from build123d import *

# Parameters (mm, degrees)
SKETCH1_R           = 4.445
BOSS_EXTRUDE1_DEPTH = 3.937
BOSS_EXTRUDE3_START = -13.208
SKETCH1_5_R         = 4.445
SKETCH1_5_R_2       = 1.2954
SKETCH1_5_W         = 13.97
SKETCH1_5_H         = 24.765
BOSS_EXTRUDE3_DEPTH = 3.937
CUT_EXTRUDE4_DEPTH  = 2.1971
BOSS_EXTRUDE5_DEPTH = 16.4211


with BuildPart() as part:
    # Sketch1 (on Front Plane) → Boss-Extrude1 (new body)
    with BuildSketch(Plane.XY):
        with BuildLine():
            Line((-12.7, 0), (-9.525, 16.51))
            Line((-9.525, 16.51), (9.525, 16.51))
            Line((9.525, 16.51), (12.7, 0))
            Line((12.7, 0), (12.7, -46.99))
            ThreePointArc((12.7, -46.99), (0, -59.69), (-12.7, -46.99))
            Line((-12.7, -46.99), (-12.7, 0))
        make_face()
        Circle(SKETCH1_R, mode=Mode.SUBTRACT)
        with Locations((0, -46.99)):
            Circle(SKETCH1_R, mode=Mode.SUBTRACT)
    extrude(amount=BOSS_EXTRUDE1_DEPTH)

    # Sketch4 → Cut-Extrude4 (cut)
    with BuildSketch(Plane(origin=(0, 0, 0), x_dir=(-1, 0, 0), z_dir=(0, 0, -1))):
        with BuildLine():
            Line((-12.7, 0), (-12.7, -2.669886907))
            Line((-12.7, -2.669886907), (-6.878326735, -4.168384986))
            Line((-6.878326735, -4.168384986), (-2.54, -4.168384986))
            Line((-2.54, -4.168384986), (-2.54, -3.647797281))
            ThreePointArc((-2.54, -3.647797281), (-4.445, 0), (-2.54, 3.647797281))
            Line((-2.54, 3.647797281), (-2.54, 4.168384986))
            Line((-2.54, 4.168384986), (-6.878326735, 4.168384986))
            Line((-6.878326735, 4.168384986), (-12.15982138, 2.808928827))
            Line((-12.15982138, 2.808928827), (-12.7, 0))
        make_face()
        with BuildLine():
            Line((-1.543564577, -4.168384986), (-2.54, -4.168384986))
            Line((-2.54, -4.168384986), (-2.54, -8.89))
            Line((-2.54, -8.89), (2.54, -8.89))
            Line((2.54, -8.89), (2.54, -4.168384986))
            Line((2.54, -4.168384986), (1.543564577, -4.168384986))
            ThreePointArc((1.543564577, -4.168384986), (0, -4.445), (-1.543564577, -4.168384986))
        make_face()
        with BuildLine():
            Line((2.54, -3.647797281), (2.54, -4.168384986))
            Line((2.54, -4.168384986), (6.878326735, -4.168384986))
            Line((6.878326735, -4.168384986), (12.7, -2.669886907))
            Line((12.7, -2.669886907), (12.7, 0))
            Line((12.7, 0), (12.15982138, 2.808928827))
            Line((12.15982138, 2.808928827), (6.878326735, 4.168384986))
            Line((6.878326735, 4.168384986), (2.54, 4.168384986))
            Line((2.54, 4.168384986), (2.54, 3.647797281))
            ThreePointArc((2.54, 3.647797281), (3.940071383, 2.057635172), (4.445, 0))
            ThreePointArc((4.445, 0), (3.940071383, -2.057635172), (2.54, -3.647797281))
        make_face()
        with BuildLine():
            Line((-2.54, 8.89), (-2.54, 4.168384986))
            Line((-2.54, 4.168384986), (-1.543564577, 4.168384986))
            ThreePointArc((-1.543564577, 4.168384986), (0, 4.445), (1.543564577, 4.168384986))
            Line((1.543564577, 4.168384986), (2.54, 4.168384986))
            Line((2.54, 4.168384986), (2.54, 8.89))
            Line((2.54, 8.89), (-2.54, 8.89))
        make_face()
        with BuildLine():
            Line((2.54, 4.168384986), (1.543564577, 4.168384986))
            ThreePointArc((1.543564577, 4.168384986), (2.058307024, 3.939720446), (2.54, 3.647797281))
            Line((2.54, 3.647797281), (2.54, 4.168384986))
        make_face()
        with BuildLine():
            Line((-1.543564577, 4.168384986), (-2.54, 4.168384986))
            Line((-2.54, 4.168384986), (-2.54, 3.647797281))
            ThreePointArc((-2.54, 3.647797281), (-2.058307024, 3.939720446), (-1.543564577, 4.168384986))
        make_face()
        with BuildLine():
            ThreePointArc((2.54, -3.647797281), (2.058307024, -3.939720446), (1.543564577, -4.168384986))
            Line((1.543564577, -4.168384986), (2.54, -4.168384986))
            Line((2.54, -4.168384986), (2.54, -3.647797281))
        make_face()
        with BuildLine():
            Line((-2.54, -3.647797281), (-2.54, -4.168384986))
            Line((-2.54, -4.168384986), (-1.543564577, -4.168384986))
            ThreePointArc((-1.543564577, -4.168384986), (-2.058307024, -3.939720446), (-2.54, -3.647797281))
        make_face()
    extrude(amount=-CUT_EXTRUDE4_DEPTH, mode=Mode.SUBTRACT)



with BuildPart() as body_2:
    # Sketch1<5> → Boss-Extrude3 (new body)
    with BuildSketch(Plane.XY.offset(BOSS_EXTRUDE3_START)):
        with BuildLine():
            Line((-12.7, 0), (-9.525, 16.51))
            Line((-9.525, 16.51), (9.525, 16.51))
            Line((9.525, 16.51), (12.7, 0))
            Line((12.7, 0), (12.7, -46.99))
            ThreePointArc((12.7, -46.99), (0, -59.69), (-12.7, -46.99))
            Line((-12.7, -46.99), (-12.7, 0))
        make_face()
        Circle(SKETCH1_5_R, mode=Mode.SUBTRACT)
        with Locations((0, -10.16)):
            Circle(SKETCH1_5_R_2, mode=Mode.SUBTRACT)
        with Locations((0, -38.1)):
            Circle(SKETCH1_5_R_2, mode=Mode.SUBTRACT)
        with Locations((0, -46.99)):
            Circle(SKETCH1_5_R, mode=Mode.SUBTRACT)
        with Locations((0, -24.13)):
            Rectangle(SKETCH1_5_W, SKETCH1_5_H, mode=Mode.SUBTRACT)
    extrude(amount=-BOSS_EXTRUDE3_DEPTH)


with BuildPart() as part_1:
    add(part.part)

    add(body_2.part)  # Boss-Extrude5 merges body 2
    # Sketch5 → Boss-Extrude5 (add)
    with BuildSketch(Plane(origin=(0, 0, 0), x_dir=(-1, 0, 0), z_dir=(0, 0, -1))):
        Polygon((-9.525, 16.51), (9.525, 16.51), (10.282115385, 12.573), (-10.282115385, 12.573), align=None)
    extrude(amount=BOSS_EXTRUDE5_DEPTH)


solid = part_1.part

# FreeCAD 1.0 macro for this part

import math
import FreeCAD as App
import Part
import Sketcher
Q = App.Units.Quantity

doc = App.newDocument("Part")
params = doc.addObject("Spreadsheet::Sheet", "Params")
for row, (alias, value) in enumerate([
    ("sketch1_radius", "0.5 in"),
    ("sketch1_diameter", "0.35 in"),
    ("sketch1_width", "0.75 in"),
    ("sketch1_height", "1.85 in"),
    ("pad1_length", "0.155 in"),
    ("sketch2_width", "0.2 in"),
    ("sketch2_radius", "0.175 in"),
    ("pocket1_length", "0.0865 in"),
    ("sketch3_radius", "0.5 in"),
    ("sketch3_diameter", "0.35 in"),
    ("sketch3_diameter2", "0.102 in"),
    ("sketch3_width", "0.75 in"),
    ("sketch3_width2", "0.55 in"),
    ("pad2_length", "0.155 in"),
    ("sketch4_width", "0.75 in"),
    ("pad3_length", "0.6465 in"),
], start=1):
    params.set(f"A{row}", alias)
    params.set(f"B{row}", "=" + value)
    params.setAlias(f"B{row}", alias)

body = doc.addObject("PartDesign::Body", "Body")

sketch1 = body.newObject("Sketcher::SketchObject", "Sketch")
sketch1.AttachmentSupport = (doc.getObject("XY_Plane"), [""])
sketch1.MapMode = "FlatFace"
sketch1.addGeometry(Part.LineSegment(App.Vector(-9.5, 16.5, 0), App.Vector(-12.7, 0, 0)), False)
sketch1.addGeometry(Part.LineSegment(App.Vector(-12.7, 0, 0), App.Vector(-12.7, -47, 0)), False)
sketch1.addGeometry(Part.ArcOfCircle(Part.Circle(App.Vector(0, -47, 0), App.Vector(0, 0, 1), 12.7), math.radians(180), math.radians(360)), False)
sketch1.addGeometry(Part.LineSegment(App.Vector(12.7, -47, 0), App.Vector(12.7, 0, 0)), False)
sketch1.addGeometry(Part.LineSegment(App.Vector(12.7, 0, 0), App.Vector(9.5, 16.5, 0)), False)
sketch1.addGeometry(Part.LineSegment(App.Vector(9.5, 16.5, 0), App.Vector(-9.5, 16.5, 0)), False)
sketch1.addGeometry(Part.Circle(App.Vector(0, -47, 0), App.Vector(0, 0, 1), 4.4), False)
sketch1.addGeometry(Part.Circle(App.Vector(0, 0, 0), App.Vector(0, 0, 1), 4.4), False)
sketch1.addConstraint(Sketcher.Constraint("Coincident", 0, 2, 1, 1))
sketch1.addConstraint(Sketcher.Constraint("Tangent", 1, 2, 2, 1))
sketch1.addConstraint(Sketcher.Constraint("Tangent", 2, 2, 3, 1))
sketch1.addConstraint(Sketcher.Constraint("Coincident", 3, 2, 4, 1))
sketch1.addConstraint(Sketcher.Constraint("Coincident", 4, 2, 5, 1))
sketch1.addConstraint(Sketcher.Constraint("Coincident", 5, 2, 0, 1))
sketch1.addConstraint(Sketcher.Constraint("Vertical", 1))
sketch1.addConstraint(Sketcher.Constraint("Vertical", 3))
sketch1.addConstraint(Sketcher.Constraint("Horizontal", 5))
sketch1.addConstraint(Sketcher.Constraint("Coincident", 7, 3, -1, 1))
sketch1.addConstraint(Sketcher.Constraint("Coincident", 6, 3, 2, 3))
sketch1.addConstraint(Sketcher.Constraint("Equal", 6, 7))
sketch1.addConstraint(Sketcher.Constraint("Symmetric", 0, 2, 3, 2, -1, 1))
sketch1.addConstraint(Sketcher.Constraint("PointOnObject", 0, 2, -1))
sketch1.addConstraint(Sketcher.Constraint("Equal", 0, 4))
sketch1.addConstraint(Sketcher.Constraint("Radius", 2, Q("0.5 in")))
sketch1.addConstraint(Sketcher.Constraint("Diameter", 6, Q("0.35 in")))
sketch1.addConstraint(Sketcher.Constraint("DistanceX", 5, 2, 5, 1, Q("0.75 in")))
sketch1.addConstraint(Sketcher.Constraint("DistanceY", 1, 2, 1, 1, Q("1.85 in")))
sketch1.addConstraint(Sketcher.Constraint("DistanceY", 2, 2, 4, 2, Q("2.5 in")))
sketch1.setExpression("Constraints[15]", "Params.sketch1_radius")
sketch1.setExpression("Constraints[16]", "Params.sketch1_diameter")
sketch1.setExpression("Constraints[17]", "Params.sketch1_width")
sketch1.setExpression("Constraints[18]", "Params.sketch1_height")
pad1 = body.newObject("PartDesign::Pad", "Pad")
pad1.Profile = sketch1
pad1.setExpression("Length", "Params.pad1_length")

sketch2 = body.newObject("Sketcher::SketchObject", "Sketch001")
sketch2.AttachmentSupport = (doc.getObject("XY_Plane"), [""])
sketch2.MapMode = "FlatFace"
sketch2.addGeometry(Part.LineSegment(App.Vector(6.9, -4.2, 0), App.Vector(2.5, -4.2, 0)), False)
sketch2.addGeometry(Part.LineSegment(App.Vector(2.5, -4.2, 0), App.Vector(2.5, -8.9, 0)), False)
sketch2.addGeometry(Part.LineSegment(App.Vector(2.5, -8.9, 0), App.Vector(-2.5, -8.9, 0)), False)
sketch2.addGeometry(Part.LineSegment(App.Vector(-2.5, -8.9, 0), App.Vector(-2.5, -4.2, 0)), False)
sketch2.addGeometry(Part.LineSegment(App.Vector(-2.5, -4.2, 0), App.Vector(-6.9, -4.2, 0)), False)
sketch2.addGeometry(Part.LineSegment(App.Vector(-6.9, -4.2, 0), App.Vector(-12.7, -2.7, 0)), False)
sketch2.addGeometry(Part.LineSegment(App.Vector(-12.7, -2.7, 0), App.Vector(-12.7, 0, 0)), False)
sketch2.addGeometry(Part.LineSegment(App.Vector(-12.7, 0, 0), App.Vector(-12.2, 2.8, 0)), False)
sketch2.addGeometry(Part.LineSegment(App.Vector(-12.2, 2.8, 0), App.Vector(-6.9, 4.2, 0)), False)
sketch2.addGeometry(Part.LineSegment(App.Vector(-6.9, 4.2, 0), App.Vector(-2.5, 4.2, 0)), False)
sketch2.addGeometry(Part.LineSegment(App.Vector(-2.5, 4.2, 0), App.Vector(-2.5, 8.9, 0)), False)
sketch2.addGeometry(Part.LineSegment(App.Vector(-2.5, 8.9, 0), App.Vector(2.5, 8.9, 0)), False)
sketch2.addGeometry(Part.LineSegment(App.Vector(2.5, 8.9, 0), App.Vector(2.5, 4.2, 0)), False)
sketch2.addGeometry(Part.LineSegment(App.Vector(2.5, 4.2, 0), App.Vector(6.9, 4.2, 0)), False)
sketch2.addGeometry(Part.LineSegment(App.Vector(6.9, 4.2, 0), App.Vector(12.2, 2.8, 0)), False)
sketch2.addGeometry(Part.LineSegment(App.Vector(12.2, 2.8, 0), App.Vector(12.7, 0, 0)), False)
sketch2.addGeometry(Part.LineSegment(App.Vector(12.7, 0, 0), App.Vector(12.7, -2.7, 0)), False)
sketch2.addGeometry(Part.LineSegment(App.Vector(12.7, -2.7, 0), App.Vector(6.9, -4.2, 0)), False)
sketch2.addGeometry(Part.ArcOfCircle(Part.Circle(App.Vector(0, 0, 0), App.Vector(0, 0, 1), 4.4), math.radians(-110), math.radians(-70)), False)
sketch2.addGeometry(Part.ArcOfCircle(Part.Circle(App.Vector(0, 0, 0), App.Vector(0, 0, 1), 4.4), math.radians(-69.68), math.radians(-55.15)), False)
sketch2.addGeometry(Part.ArcOfCircle(Part.Circle(App.Vector(0, 0, 0), App.Vector(0, 0, 1), 4.4), math.radians(-55), math.radians(55)), False)
sketch2.addGeometry(Part.ArcOfCircle(Part.Circle(App.Vector(0, 0, 0), App.Vector(0, 0, 1), 4.4), math.radians(55.15), math.radians(69.68)), False)
sketch2.addGeometry(Part.ArcOfCircle(Part.Circle(App.Vector(0, 0, 0), App.Vector(0, 0, 1), 4.4), math.radians(70), math.radians(110)), False)
sketch2.addGeometry(Part.ArcOfCircle(Part.Circle(App.Vector(0, 0, 0), App.Vector(0, 0, 1), 4.4), math.radians(110.32), math.radians(124.85)), False)
sketch2.addGeometry(Part.ArcOfCircle(Part.Circle(App.Vector(0, 0, 0), App.Vector(0, 0, 1), 4.4), math.radians(125), math.radians(180)), False)
sketch2.addGeometry(Part.ArcOfCircle(Part.Circle(App.Vector(0, 0, 0), App.Vector(0, 0, 1), 4.4), math.radians(180), math.radians(235)), False)
sketch2.addGeometry(Part.ArcOfCircle(Part.Circle(App.Vector(0, 0, 0), App.Vector(0, 0, 1), 4.4), math.radians(-124.85), math.radians(-110.32)), False)
sketch2.addConstraint(Sketcher.Constraint("Coincident", 0, 2, 1, 1))
sketch2.addConstraint(Sketcher.Constraint("Coincident", 1, 2, 2, 1))
sketch2.addConstraint(Sketcher.Constraint("Coincident", 2, 2, 3, 1))
sketch2.addConstraint(Sketcher.Constraint("Coincident", 3, 2, 4, 1))
sketch2.addConstraint(Sketcher.Constraint("Coincident", 4, 2, 5, 1))
sketch2.addConstraint(Sketcher.Constraint("Coincident", 5, 2, 6, 1))
sketch2.addConstraint(Sketcher.Constraint("Coincident", 6, 2, 7, 1))
sketch2.addConstraint(Sketcher.Constraint("Coincident", 7, 2, 8, 1))
sketch2.addConstraint(Sketcher.Constraint("Coincident", 8, 2, 9, 1))
sketch2.addConstraint(Sketcher.Constraint("Coincident", 9, 2, 10, 1))
sketch2.addConstraint(Sketcher.Constraint("Coincident", 10, 2, 11, 1))
sketch2.addConstraint(Sketcher.Constraint("Coincident", 11, 2, 12, 1))
sketch2.addConstraint(Sketcher.Constraint("Coincident", 12, 2, 13, 1))
sketch2.addConstraint(Sketcher.Constraint("Coincident", 13, 2, 14, 1))
sketch2.addConstraint(Sketcher.Constraint("Coincident", 14, 2, 15, 1))
sketch2.addConstraint(Sketcher.Constraint("Coincident", 15, 2, 16, 1))
sketch2.addConstraint(Sketcher.Constraint("Coincident", 16, 2, 17, 1))
sketch2.addConstraint(Sketcher.Constraint("Coincident", 17, 2, 0, 1))
sketch2.addConstraint(Sketcher.Constraint("Tangent", 18, 2, 19, 1))
sketch2.addConstraint(Sketcher.Constraint("Tangent", 19, 2, 20, 1))
sketch2.addConstraint(Sketcher.Constraint("Tangent", 20, 2, 21, 1))
sketch2.addConstraint(Sketcher.Constraint("Tangent", 21, 2, 22, 1))
sketch2.addConstraint(Sketcher.Constraint("Tangent", 22, 2, 23, 1))
sketch2.addConstraint(Sketcher.Constraint("Tangent", 23, 2, 24, 1))
sketch2.addConstraint(Sketcher.Constraint("Tangent", 24, 2, 25, 1))
sketch2.addConstraint(Sketcher.Constraint("Tangent", 25, 2, 26, 1))
sketch2.addConstraint(Sketcher.Constraint("Tangent", 26, 2, 18, 1))
sketch2.addConstraint(Sketcher.Constraint("Horizontal", 0))
sketch2.addConstraint(Sketcher.Constraint("Vertical", 1))
sketch2.addConstraint(Sketcher.Constraint("Horizontal", 2))
sketch2.addConstraint(Sketcher.Constraint("Vertical", 3))
sketch2.addConstraint(Sketcher.Constraint("Horizontal", 4))
sketch2.addConstraint(Sketcher.Constraint("Vertical", 6))
sketch2.addConstraint(Sketcher.Constraint("Horizontal", 9))
sketch2.addConstraint(Sketcher.Constraint("Vertical", 10))
sketch2.addConstraint(Sketcher.Constraint("Horizontal", 11))
sketch2.addConstraint(Sketcher.Constraint("Vertical", 12))
sketch2.addConstraint(Sketcher.Constraint("Horizontal", 13))
sketch2.addConstraint(Sketcher.Constraint("Vertical", 16))
sketch2.addConstraint(Sketcher.Constraint("Coincident", 18, 3, -1, 1))
sketch2.addConstraint(Sketcher.Constraint("Coincident", 20, 3, -1, 1))
sketch2.addConstraint(Sketcher.Constraint("Coincident", 22, 3, -1, 1))
sketch2.addConstraint(Sketcher.Constraint("Coincident", 24, 3, -1, 1))
sketch2.addConstraint(Sketcher.Constraint("Symmetric", 0, 2, 9, 2, -1, 1))
sketch2.addConstraint(Sketcher.Constraint("Symmetric", 2, 2, 11, 2, -1, 1))
sketch2.addConstraint(Sketcher.Constraint("Symmetric", 4, 2, 13, 2, -1, 1))
sketch2.addConstraint(Sketcher.Constraint("Symmetric", 6, 2, 15, 2, -1, 1))
sketch2.addConstraint(Sketcher.Constraint("Symmetric", 0, 2, 3, 2, -2))
sketch2.addConstraint(Sketcher.Constraint("Symmetric", 7, 2, 14, 2, -2))
sketch2.addConstraint(Sketcher.Constraint("PointOnObject", 6, 2, -1))
sketch2.addConstraint(Sketcher.Constraint("PointOnObject", 24, 2, -1))
sketch2.addConstraint(Sketcher.Constraint("Parallel", 5, 14))
sketch2.addConstraint(Sketcher.Constraint("Parallel", 8, 17))
sketch2.addConstraint(Sketcher.Constraint("Horizontal", 5, 2, 16, 2))
sketch2.addConstraint(Sketcher.Constraint("Horizontal", 17, 2, 18, 2))
sketch2.addConstraint(Sketcher.Constraint("Horizontal", 13, 2, 21, 2))
sketch2.addConstraint(Sketcher.Constraint("Horizontal", 21, 2, 22, 2))
sketch2.addConstraint(Sketcher.Constraint("Horizontal", 20, 2, 23, 2))
sketch2.addConstraint(Sketcher.Constraint("Horizontal", 19, 2, 25, 2))
sketch2.addConstraint(Sketcher.Constraint("Horizontal", 18, 2, 26, 2))
sketch2.addConstraint(Sketcher.Constraint("Vertical", 4, 2, 8, 2))
sketch2.addConstraint(Sketcher.Constraint("Vertical", 12, 2, 19, 2))
sketch2.addConstraint(Sketcher.Constraint("Vertical", 19, 2, 20, 2))
sketch2.addConstraint(Sketcher.Constraint("DistanceX", 2, 2, 2, 1, Q("0.2 in")))
sketch2.addConstraint(Sketcher.Constraint("Radius", 18, Q("0.175 in")))
sketch2.addConstraint(Sketcher.Constraint("DistanceX", 5, 2, -1, 1, Q("0.5 in")))
sketch2.addConstraint(Sketcher.Constraint("DistanceY", 1, 2, -1, 1, Q("0.35 in")))
sketch2.addConstraint(Sketcher.Constraint("DistanceY", 4, 2, 5, 2, 1.498498))
sketch2.addConstraint(Sketcher.Constraint("Distance", 8, 5.453651))
sketch2.addConstraint(Sketcher.Constraint("DistanceX", 0, 2, 0, 1, 4.338327))
sketch2.addConstraint(Sketcher.Constraint("DistanceY", 1, 2, 1, 1, 4.721615))
sketch2.setExpression("Constraints[63]", "Params.sketch2_width")
sketch2.setExpression("Constraints[64]", "Params.sketch2_radius")
pocket1 = body.newObject("PartDesign::Pocket", "Pocket")
pocket1.Profile = sketch2
pocket1.setExpression("Length", "Params.pocket1_length")
pocket1.Reversed = True
body2 = doc.addObject("PartDesign::Body", "Body001")

sketch3 = body2.newObject("Sketcher::SketchObject", "Sketch002")
sketch3.AttachmentSupport = (doc.getObject("XY_Plane001"), [""])
sketch3.MapMode = "FlatFace"
sketch3.AttachmentOffset = App.Placement(App.Vector(0, 0, -0.52 * 25.4), App.Rotation())
sketch3.addGeometry(Part.LineSegment(App.Vector(-9.5, 16.5, 0), App.Vector(-12.7, 0, 0)), False)
sketch3.addGeometry(Part.LineSegment(App.Vector(-12.7, 0, 0), App.Vector(-12.7, -47, 0)), False)
sketch3.addGeometry(Part.ArcOfCircle(Part.Circle(App.Vector(0, -47, 0), App.Vector(0, 0, 1), 12.7), math.radians(180), math.radians(360)), False)
sketch3.addGeometry(Part.LineSegment(App.Vector(12.7, -47, 0), App.Vector(12.7, 0, 0)), False)
sketch3.addGeometry(Part.LineSegment(App.Vector(12.7, 0, 0), App.Vector(9.5, 16.5, 0)), False)
sketch3.addGeometry(Part.LineSegment(App.Vector(9.5, 16.5, 0), App.Vector(-9.5, 16.5, 0)), False)
sketch3.addGeometry(Part.Circle(App.Vector(0, -47, 0), App.Vector(0, 0, 1), 4.4), False)
sketch3.addGeometry(Part.Circle(App.Vector(0, -38.1, 0), App.Vector(0, 0, 1), 1.3), False)
sketch3.addGeometry(Part.LineSegment(App.Vector(-7, -36.5, 0), App.Vector(-7, -11.7, 0)), False)
sketch3.addGeometry(Part.LineSegment(App.Vector(-7, -11.7, 0), App.Vector(7, -11.7, 0)), False)
sketch3.addGeometry(Part.LineSegment(App.Vector(7, -11.7, 0), App.Vector(7, -36.5, 0)), False)
sketch3.addGeometry(Part.LineSegment(App.Vector(7, -36.5, 0), App.Vector(-7, -36.5, 0)), False)
sketch3.addGeometry(Part.Circle(App.Vector(0, -10.2, 0), App.Vector(0, 0, 1), 1.3), False)
sketch3.addGeometry(Part.Circle(App.Vector(0, 0, 0), App.Vector(0, 0, 1), 4.4), False)
sketch3.addConstraint(Sketcher.Constraint("Coincident", 0, 2, 1, 1))
sketch3.addConstraint(Sketcher.Constraint("Tangent", 1, 2, 2, 1))
sketch3.addConstraint(Sketcher.Constraint("Tangent", 2, 2, 3, 1))
sketch3.addConstraint(Sketcher.Constraint("Coincident", 3, 2, 4, 1))
sketch3.addConstraint(Sketcher.Constraint("Coincident", 4, 2, 5, 1))
sketch3.addConstraint(Sketcher.Constraint("Coincident", 5, 2, 0, 1))
sketch3.addConstraint(Sketcher.Constraint("Coincident", 8, 2, 9, 1))
sketch3.addConstraint(Sketcher.Constraint("Coincident", 9, 2, 10, 1))
sketch3.addConstraint(Sketcher.Constraint("Coincident", 10, 2, 11, 1))
sketch3.addConstraint(Sketcher.Constraint("Coincident", 11, 2, 8, 1))
sketch3.addConstraint(Sketcher.Constraint("Vertical", 1))
sketch3.addConstraint(Sketcher.Constraint("Vertical", 3))
sketch3.addConstraint(Sketcher.Constraint("Horizontal", 5))
sketch3.addConstraint(Sketcher.Constraint("Vertical", 8))
sketch3.addConstraint(Sketcher.Constraint("Horizontal", 9))
sketch3.addConstraint(Sketcher.Constraint("Vertical", 10))
sketch3.addConstraint(Sketcher.Constraint("Horizontal", 11))
sketch3.addConstraint(Sketcher.Constraint("Coincident", 13, 3, -1, 1))
sketch3.addConstraint(Sketcher.Constraint("Coincident", 6, 3, 2, 3))
sketch3.addConstraint(Sketcher.Constraint("Equal", 7, 12))
sketch3.addConstraint(Sketcher.Constraint("Equal", 6, 13))
sketch3.addConstraint(Sketcher.Constraint("Symmetric", 0, 2, 3, 2, -1, 1))
sketch3.addConstraint(Sketcher.Constraint("PointOnObject", 7, 3, -2))
sketch3.addConstraint(Sketcher.Constraint("PointOnObject", 12, 3, -2))
sketch3.addConstraint(Sketcher.Constraint("PointOnObject", 0, 2, -1))
sketch3.addConstraint(Sketcher.Constraint("Equal", 0, 4))
sketch3.addConstraint(Sketcher.Constraint("Radius", 2, Q("0.5 in")))
sketch3.addConstraint(Sketcher.Constraint("Diameter", 6, Q("0.35 in")))
sketch3.addConstraint(Sketcher.Constraint("Diameter", 7, Q("0.102 in")))
sketch3.addConstraint(Sketcher.Constraint("DistanceX", 5, 2, 5, 1, Q("0.75 in")))
sketch3.addConstraint(Sketcher.Constraint("DistanceX", 9, 1, 9, 2, Q("0.55 in")))
sketch3.addConstraint(Sketcher.Constraint("DistanceY", 1, 2, 1, 1, Q("1.85 in")))
sketch3.addConstraint(Sketcher.Constraint("DistanceY", 7, 3, -1, 1, Q("1.5 in")))
sketch3.addConstraint(Sketcher.Constraint("DistanceY", 12, 3, -1, 1, Q("0.4 in")))
sketch3.addConstraint(Sketcher.Constraint("DistanceY", 8, 1, 8, 2, Q("0.975 in")))
sketch3.addConstraint(Sketcher.Constraint("DistanceY", -1, 1, 4, 2, Q("0.65 in")))
sketch3.addConstraint(Sketcher.Constraint("DistanceX", 8, 2, -1, 1, Q("0.275 in")))
sketch3.addConstraint(Sketcher.Constraint("DistanceY", 10, 2, -1, 1, Q("1.4375 in")))
sketch3.setExpression("Constraints[26]", "Params.sketch3_radius")
sketch3.setExpression("Constraints[27]", "Params.sketch3_diameter")
sketch3.setExpression("Constraints[28]", "Params.sketch3_diameter2")
sketch3.setExpression("Constraints[29]", "Params.sketch3_width")
sketch3.setExpression("Constraints[30]", "Params.sketch3_width2")
pad2 = body2.newObject("PartDesign::Pad", "Pad001")
pad2.Profile = sketch3
pad2.setExpression("Length", "Params.pad2_length")
pad2.Reversed = True
body.AllowCompound = True
doc.recompute()

boolean = body.newObject("PartDesign::Boolean", "Boolean")
boolean.Type = "Fuse"
boolean.addObjects([body2])

sketch4 = body.newObject("Sketcher::SketchObject", "Sketch003")
sketch4.AttachmentSupport = (doc.getObject("XY_Plane"), [""])
sketch4.MapMode = "FlatFace"
sketch4.addGeometry(Part.LineSegment(App.Vector(-9.5, 16.5, 0), App.Vector(9.5, 16.5, 0)), False)
sketch4.addGeometry(Part.LineSegment(App.Vector(9.5, 16.5, 0), App.Vector(10.3, 12.6, 0)), False)
sketch4.addGeometry(Part.LineSegment(App.Vector(10.3, 12.6, 0), App.Vector(-10.3, 12.6, 0)), False)
sketch4.addGeometry(Part.LineSegment(App.Vector(-10.3, 12.6, 0), App.Vector(-9.5, 16.5, 0)), False)
sketch4.addConstraint(Sketcher.Constraint("Coincident", 0, 2, 1, 1))
sketch4.addConstraint(Sketcher.Constraint("Coincident", 1, 2, 2, 1))
sketch4.addConstraint(Sketcher.Constraint("Coincident", 2, 2, 3, 1))
sketch4.addConstraint(Sketcher.Constraint("Coincident", 3, 2, 0, 1))
sketch4.addConstraint(Sketcher.Constraint("Horizontal", 0))
sketch4.addConstraint(Sketcher.Constraint("Horizontal", 2))
sketch4.addConstraint(Sketcher.Constraint("Equal", 1, 3))
sketch4.addConstraint(Sketcher.Constraint("DistanceX", 0, 1, 0, 2, Q("0.75 in")))
sketch4.addConstraint(Sketcher.Constraint("DistanceY", -1, 1, 0, 2, Q("0.65 in")))
sketch4.addConstraint(Sketcher.Constraint("DistanceX", -1, 1, 0, 2, Q("0.375 in")))
sketch4.addConstraint(Sketcher.Constraint("DistanceY", -1, 1, 1, 2, Q("0.495 in")))
sketch4.addConstraint(Sketcher.Constraint("DistanceX", 2, 2, 2, 1, 20.564231))
sketch4.setExpression("Constraints[7]", "Params.sketch4_width")
pad3 = body.newObject("PartDesign::Pad", "Pad002")
pad3.Profile = sketch4
pad3.setExpression("Length", "Params.pad3_length")
pad3.Reversed = True

doc.recompute()
